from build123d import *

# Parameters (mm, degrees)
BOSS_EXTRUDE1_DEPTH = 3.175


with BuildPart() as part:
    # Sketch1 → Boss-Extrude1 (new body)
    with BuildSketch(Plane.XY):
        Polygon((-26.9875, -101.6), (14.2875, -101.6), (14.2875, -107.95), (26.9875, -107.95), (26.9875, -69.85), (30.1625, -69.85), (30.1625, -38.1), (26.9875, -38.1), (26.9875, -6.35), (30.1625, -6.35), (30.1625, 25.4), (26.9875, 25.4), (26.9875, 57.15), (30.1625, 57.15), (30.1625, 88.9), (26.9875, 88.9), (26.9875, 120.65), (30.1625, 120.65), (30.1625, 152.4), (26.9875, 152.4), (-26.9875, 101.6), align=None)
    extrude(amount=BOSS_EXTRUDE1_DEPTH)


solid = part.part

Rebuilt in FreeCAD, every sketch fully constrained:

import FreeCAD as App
import Part
import Sketcher
from FreeCAD import Vector
Q = App.Units.Quantity

doc = App.newDocument("Part")
body = doc.addObject("PartDesign::Body", "Body")

sketch1 = body.newObject("Sketcher::SketchObject", "Sketch")
sketch1.AttachmentSupport = (doc.getObject("XY_Plane"), [""])
sketch1.MapMode = "FlatFace"
sketch1.addGeometry([
    Part.LineSegment(Vector(-27, -101.6, 0), Vector(14.3, -101.6, 0)),
    Part.LineSegment(Vector(14.3, -101.6, 0), Vector(14.3, -108, 0)),
    Part.LineSegment(Vector(14.3, -108, 0), Vector(27, -108, 0)),
    Part.LineSegment(Vector(27, -108, 0), Vector(27, -69.8, 0)),
    Part.LineSegment(Vector(27, -69.8, 0), Vector(30.2, -69.8, 0)),
    Part.LineSegment(Vector(30.2, -69.8, 0), Vector(30.2, -38.1, 0)),
    Part.LineSegment(Vector(30.2, -38.1, 0), Vector(27, -38.1, 0)),
    Part.LineSegment(Vector(27, -38.1, 0), Vector(27, -6.3, 0)),
    Part.LineSegment(Vector(27, -6.3, 0), Vector(30.2, -6.3, 0)),
    Part.LineSegment(Vector(30.2, -6.3, 0), Vector(30.2, 25.4, 0)),
    Part.LineSegment(Vector(30.2, 25.4, 0), Vector(27, 25.4, 0)),
    Part.LineSegment(Vector(27, 25.4, 0), Vector(27, 57.1, 0)),
    Part.LineSegment(Vector(27, 57.1, 0), Vector(30.2, 57.1, 0)),
    Part.LineSegment(Vector(30.2, 57.1, 0), Vector(30.2, 88.9, 0)),
    Part.LineSegment(Vector(30.2, 88.9, 0), Vector(27, 88.9, 0)),
    Part.LineSegment(Vector(27, 88.9, 0), Vector(27, 120.7, 0)),
    Part.LineSegment(Vector(27, 120.7, 0), Vector(30.2, 120.7, 0)),
    Part.LineSegment(Vector(30.2, 120.7, 0), Vector(30.2, 152.4, 0)),
    Part.LineSegment(Vector(30.2, 152.4, 0), Vector(27, 152.4, 0)),
    Part.LineSegment(Vector(27, 152.4, 0), Vector(-27, 101.6, 0)),
    Part.LineSegment(Vector(-27, 101.6, 0), Vector(-27, -101.6, 0)),
], False)
sketch1.addConstraint([
    Sketcher.Constraint("Coincident", 0, 2, 1, 1),
    Sketcher.Constraint("Coincident", 1, 2, 2, 1),
    Sketcher.Constraint("Coincident", 2, 2, 3, 1),
    Sketcher.Constraint("Coincident", 3, 2, 4, 1),
    Sketcher.Constraint("Coincident", 4, 2, 5, 1),
    Sketcher.Constraint("Coincident", 5, 2, 6, 1),
    Sketcher.Constraint("Coincident", 6, 2, 7, 1),
    Sketcher.Constraint("Coincident", 7, 2, 8, 1),
    Sketcher.Constraint("Coincident", 8, 2, 9, 1),
    Sketcher.Constraint("Coincident", 9, 2, 10, 1),
    Sketcher.Constraint("Coincident", 10, 2, 11, 1),
    Sketcher.Constraint("Coincident", 11, 2, 12, 1),
    Sketcher.Constraint("Coincident", 12, 2, 13, 1),
    Sketcher.Constraint("Coincident", 13, 2, 14, 1),
    Sketcher.Constraint("Coincident", 14, 2, 15, 1),
    Sketcher.Constraint("Coincident", 15, 2, 16, 1),
    Sketcher.Constraint("Coincident", 16, 2, 17, 1),
    Sketcher.Constraint("Coincident", 17, 2, 18, 1),
    Sketcher.Constraint("Coincident", 18, 2, 19, 1),
    Sketcher.Constraint("Coincident", 19, 2, 20, 1),
    Sketcher.Constraint("Coincident", 20, 2, 0, 1),
    Sketcher.Constraint("Horizontal", 0),
    Sketcher.Constraint("Vertical", 1),
    Sketcher.Constraint("Horizontal", 2),
    Sketcher.Constraint("Vertical", 3),
    Sketcher.Constraint("Horizontal", 4),
    Sketcher.Constraint("Vertical", 5),
    Sketcher.Constraint("Horizontal", 6),
    Sketcher.Constraint("Vertical", 7),
    Sketcher.Constraint("Horizontal", 8),
    Sketcher.Constraint("Vertical", 9),
    Sketcher.Constraint("Horizontal", 10),
    Sketcher.Constraint("Vertical", 11),
    Sketcher.Constraint("Horizontal", 12),
    Sketcher.Constraint("Vertical", 13),
    Sketcher.Constraint("Horizontal", 14),
    Sketcher.Constraint("Vertical", 15),
    Sketcher.Constraint("Horizontal", 16),
    Sketcher.Constraint("Vertical", 17),
    Sketcher.Constraint("Horizontal", 18),
    Sketcher.Constraint("Vertical", 20),
    Sketcher.Constraint("Vertical", 3, 2, 6, 2),
    Sketcher.Constraint("Vertical", 5, 2, 8, 2),
    Sketcher.Constraint("Vertical", 7, 2, 10, 2),
    Sketcher.Constraint("Vertical", 9, 2, 12, 2),
    Sketcher.Constraint("Vertical", 11, 2, 14, 2),
    Sketcher.Constraint("Vertical", 13, 2, 16, 2),
    Sketcher.Constraint("Vertical", 15, 2, 18, 2),
    Sketcher.Constraint("Equal", 5, 7),
    Sketcher.Constraint("Equal", 7, 9),
    Sketcher.Constraint("Equal", 9, 11),
    Sketcher.Constraint("Equal", 11, 13),
    Sketcher.Constraint("Equal", 13, 15),
    Sketcher.Constraint("Equal", 15, 17),
    Sketcher.Constraint("DistanceY", 20, 2, 20, 1, Q("8 in")),
    Sketcher.Constraint("DistanceX", 2, 1, 2, 2, Q("0.5 in")),
    Sketcher.Constraint("DistanceY", 3, 1, 3, 2, Q("1.5 in")),
    Sketcher.Constraint("DistanceY", 0, 2, -1, 1, Q("4 in")),
    Sketcher.Constraint("DistanceY", -1, 1, 9, 2, Q("1 in")),
    Sketcher.Constraint("DistanceY", -1, 1, 17, 2, Q("6 in")),
    Sketcher.Constraint("DistanceX", 0, 1, 0, 2, Q("1.625 in")),
    Sketcher.Constraint("DistanceX", 4, 1, 4, 2, Q("0.125 in")),
    Sketcher.Constraint("DistanceX", -1, 1, 0, 2, Q("0.5625 in")),
])
pad1 = body.newObject("PartDesign::Pad", "Pad")
pad1.Profile = sketch1
pad1.Length = Q("0.125 in")

doc.recompute()
